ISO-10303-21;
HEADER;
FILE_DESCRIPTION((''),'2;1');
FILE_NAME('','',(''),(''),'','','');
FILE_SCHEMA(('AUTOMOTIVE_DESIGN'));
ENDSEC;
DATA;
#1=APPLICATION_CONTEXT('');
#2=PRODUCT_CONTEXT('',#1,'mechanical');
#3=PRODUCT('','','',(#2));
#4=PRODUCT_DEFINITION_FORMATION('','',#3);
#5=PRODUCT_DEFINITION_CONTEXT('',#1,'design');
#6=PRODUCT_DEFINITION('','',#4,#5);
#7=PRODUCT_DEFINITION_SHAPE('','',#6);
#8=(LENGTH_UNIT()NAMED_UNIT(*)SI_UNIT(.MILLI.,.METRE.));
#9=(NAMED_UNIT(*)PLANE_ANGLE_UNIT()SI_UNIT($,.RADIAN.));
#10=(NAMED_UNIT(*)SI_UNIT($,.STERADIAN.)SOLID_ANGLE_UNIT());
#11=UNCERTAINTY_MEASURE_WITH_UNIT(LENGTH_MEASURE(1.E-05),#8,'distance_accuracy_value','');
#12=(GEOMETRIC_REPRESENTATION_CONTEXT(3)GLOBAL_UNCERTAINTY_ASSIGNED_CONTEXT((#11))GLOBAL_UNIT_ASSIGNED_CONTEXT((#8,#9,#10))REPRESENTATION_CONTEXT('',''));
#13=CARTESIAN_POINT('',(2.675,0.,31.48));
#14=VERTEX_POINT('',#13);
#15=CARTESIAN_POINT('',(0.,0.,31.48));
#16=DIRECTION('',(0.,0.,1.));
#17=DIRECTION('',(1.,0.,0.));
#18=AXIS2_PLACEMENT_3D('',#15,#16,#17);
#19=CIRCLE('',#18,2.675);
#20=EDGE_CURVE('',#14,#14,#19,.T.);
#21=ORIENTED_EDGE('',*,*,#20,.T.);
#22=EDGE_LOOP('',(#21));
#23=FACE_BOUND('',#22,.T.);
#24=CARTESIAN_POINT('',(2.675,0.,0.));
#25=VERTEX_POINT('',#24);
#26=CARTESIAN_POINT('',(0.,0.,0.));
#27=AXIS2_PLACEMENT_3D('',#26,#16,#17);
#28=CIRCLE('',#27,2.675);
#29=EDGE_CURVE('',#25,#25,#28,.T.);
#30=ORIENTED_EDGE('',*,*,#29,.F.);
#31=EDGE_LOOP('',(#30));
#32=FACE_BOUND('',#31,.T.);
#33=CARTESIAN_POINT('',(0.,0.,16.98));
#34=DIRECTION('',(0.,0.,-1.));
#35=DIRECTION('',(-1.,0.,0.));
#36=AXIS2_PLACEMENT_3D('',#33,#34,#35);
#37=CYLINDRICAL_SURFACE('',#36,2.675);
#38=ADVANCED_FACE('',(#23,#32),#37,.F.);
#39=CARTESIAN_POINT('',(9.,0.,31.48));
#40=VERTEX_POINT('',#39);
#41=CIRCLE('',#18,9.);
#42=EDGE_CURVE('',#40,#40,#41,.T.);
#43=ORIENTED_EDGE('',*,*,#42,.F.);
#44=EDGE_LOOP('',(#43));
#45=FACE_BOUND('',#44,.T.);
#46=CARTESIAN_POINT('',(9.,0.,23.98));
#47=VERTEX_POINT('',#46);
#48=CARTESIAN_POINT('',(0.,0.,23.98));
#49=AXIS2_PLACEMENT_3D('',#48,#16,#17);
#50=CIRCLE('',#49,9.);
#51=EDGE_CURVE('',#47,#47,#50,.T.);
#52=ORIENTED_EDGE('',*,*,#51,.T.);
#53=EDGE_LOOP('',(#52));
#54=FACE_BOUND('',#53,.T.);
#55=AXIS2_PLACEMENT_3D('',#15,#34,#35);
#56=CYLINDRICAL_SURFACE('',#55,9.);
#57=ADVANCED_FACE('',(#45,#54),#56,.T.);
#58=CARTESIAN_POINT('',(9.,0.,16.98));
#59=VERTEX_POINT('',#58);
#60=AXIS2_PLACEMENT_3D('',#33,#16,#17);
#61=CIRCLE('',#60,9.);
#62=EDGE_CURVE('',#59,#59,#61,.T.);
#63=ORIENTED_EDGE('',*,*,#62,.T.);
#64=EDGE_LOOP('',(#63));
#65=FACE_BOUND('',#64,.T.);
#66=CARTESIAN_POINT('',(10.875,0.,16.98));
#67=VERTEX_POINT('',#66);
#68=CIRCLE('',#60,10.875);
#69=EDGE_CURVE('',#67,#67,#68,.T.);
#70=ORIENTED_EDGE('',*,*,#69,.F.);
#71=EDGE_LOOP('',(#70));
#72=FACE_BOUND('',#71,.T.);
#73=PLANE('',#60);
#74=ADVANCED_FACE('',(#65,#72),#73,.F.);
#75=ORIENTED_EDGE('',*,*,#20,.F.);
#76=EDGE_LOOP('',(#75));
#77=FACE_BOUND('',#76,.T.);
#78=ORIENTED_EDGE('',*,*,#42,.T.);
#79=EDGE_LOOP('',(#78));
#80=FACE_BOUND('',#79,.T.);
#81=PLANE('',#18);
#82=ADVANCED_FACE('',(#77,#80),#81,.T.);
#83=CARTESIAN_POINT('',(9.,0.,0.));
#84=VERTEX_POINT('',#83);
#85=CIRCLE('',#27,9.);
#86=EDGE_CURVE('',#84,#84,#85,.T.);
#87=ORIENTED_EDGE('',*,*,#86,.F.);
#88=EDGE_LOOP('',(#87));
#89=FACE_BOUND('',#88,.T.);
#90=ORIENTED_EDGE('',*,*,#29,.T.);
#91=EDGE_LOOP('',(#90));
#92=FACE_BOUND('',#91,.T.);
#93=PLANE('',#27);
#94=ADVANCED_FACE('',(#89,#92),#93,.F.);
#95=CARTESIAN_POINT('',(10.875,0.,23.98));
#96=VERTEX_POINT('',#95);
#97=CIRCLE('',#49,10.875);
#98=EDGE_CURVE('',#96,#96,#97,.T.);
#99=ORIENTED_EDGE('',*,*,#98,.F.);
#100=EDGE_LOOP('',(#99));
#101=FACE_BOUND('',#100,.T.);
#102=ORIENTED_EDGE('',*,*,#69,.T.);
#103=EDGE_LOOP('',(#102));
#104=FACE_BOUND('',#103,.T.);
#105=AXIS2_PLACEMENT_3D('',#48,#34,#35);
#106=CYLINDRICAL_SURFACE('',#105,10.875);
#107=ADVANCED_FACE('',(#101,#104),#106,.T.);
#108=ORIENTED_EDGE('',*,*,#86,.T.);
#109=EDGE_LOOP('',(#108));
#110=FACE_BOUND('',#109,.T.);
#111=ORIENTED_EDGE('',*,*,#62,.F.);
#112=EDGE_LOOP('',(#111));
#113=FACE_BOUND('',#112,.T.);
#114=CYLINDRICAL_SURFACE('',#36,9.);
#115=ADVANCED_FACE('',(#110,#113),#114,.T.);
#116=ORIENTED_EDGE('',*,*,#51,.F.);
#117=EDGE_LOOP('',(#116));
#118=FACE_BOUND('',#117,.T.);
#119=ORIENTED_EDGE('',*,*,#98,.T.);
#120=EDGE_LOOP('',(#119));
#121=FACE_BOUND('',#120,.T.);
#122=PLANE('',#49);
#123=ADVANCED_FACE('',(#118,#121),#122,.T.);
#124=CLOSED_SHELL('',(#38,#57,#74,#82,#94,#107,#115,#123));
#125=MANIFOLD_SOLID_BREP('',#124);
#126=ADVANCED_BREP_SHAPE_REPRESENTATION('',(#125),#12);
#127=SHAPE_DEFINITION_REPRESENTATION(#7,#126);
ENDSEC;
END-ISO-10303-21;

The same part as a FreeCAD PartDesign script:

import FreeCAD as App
import Part
import Sketcher
from FreeCAD import Vector

doc = App.newDocument("Part")
params = doc.addObject("Spreadsheet::Sheet", "Params")
for row, (alias, value) in enumerate([
    ("sketch1_diameter", "18 mm"),
    ("sketch1_diameter2", "5.35 mm"),
    ("pad1_length", "16.98 mm"),
    ("sketch2_diameter", "21.75 mm"),
    ("sketch2_diameter2", "5.35 mm"),
    ("pad2_length", "7 mm"),
    ("sketch3_diameter", "18 mm"),
    ("sketch3_diameter2", "5.35 mm"),
    ("pad3_length", "7.5 mm"),
], start=1):
    params.set(f"A{row}", alias)
    params.set(f"B{row}", "=" + value)
    params.setAlias(f"B{row}", alias)

body = doc.addObject("PartDesign::Body", "Body")

# Sketch on XY plane
sketch1 = body.newObject("Sketcher::SketchObject", "Sketch")
sketch1.AttachmentSupport = (doc.getObject("XY_Plane"), [""])
sketch1.MapMode = "FlatFace"
sketch1.addGeometry([
    Part.Circle(Vector(0, 0, 0), Vector(0, 0, 1), 9),
    Part.Circle(Vector(0, 0, 0), Vector(0, 0, 1), 2.7),
], False)
sketch1.addConstraint([
    Sketcher.Constraint("Coincident", 0, 3, -1, 1),
    Sketcher.Constraint("Coincident", 1, 3, -1, 1),
    Sketcher.Constraint("Diameter", 0, 18.0),
    Sketcher.Constraint("Diameter", 1, 5.35),
])
sketch1.setExpression("Constraints[2]", "Params.sketch1_diameter")
sketch1.setExpression("Constraints[3]", "Params.sketch1_diameter2")
pad1 = body.newObject("PartDesign::Pad", "Pad")
pad1.Profile = sketch1
pad1.setExpression("Length", "Params.pad1_length")

# Sketch on XY plane
sketch2 = body.newObject("Sketcher::SketchObject", "Sketch001")
sketch2.AttachmentSupport = (doc.getObject("XY_Plane"), [""])
sketch2.MapMode = "FlatFace"
sketch2.AttachmentOffset = App.Placement(Vector(0, 0, 16.98), App.Rotation())
sketch2.addGeometry([
    Part.Circle(Vector(0, 0, 0), Vector(0, 0, 1), 10.9),
    Part.Circle(Vector(0, 0, 0), Vector(0, 0, 1), 2.7),
], False)
sketch2.addConstraint([
    Sketcher.Constraint("Coincident", 0, 3, -1, 1),
    Sketcher.Constraint("Coincident", 1, 3, -1, 1),
    Sketcher.Constraint("Diameter", 0, 21.75),
    Sketcher.Constraint("Diameter", 1, 5.35),
])
sketch2.setExpression("Constraints[2]", "Params.sketch2_diameter")
sketch2.setExpression("Constraints[3]", "Params.sketch2_diameter2")
pad2 = body.newObject("PartDesign::Pad", "Pad001")
pad2.Profile = sketch2
pad2.setExpression("Length", "Params.pad2_length")

# Sketch on XY plane
sketch3 = body.newObject("Sketcher::SketchObject", "Sketch002")
sketch3.AttachmentSupport = (doc.getObject("XY_Plane"), [""])
sketch3.MapMode = "FlatFace"
sketch3.AttachmentOffset = App.Placement(Vector(0, 0, 23.98), App.Rotation())
sketch3.addGeometry([
    Part.Circle(Vector(0, 0, 0), Vector(0, 0, 1), 9),
    Part.Circle(Vector(0, 0, 0), Vector(0, 0, 1), 2.7),
], False)
sketch3.addConstraint([
    Sketcher.Constraint("Coincident", 0, 3, -1, 1),
    Sketcher.Constraint("Coincident", 1, 3, -1, 1),
    Sketcher.Constraint("Diameter", 0, 18.0),
    Sketcher.Constraint("Diameter", 1, 5.35),
])
sketch3.setExpression("Constraints[2]", "Params.sketch3_diameter")
sketch3.setExpression("Constraints[3]", "Params.sketch3_diameter2")
pad3 = body.newObject("PartDesign::Pad", "Pad002")
pad3.Profile = sketch3
pad3.setExpression("Length", "Params.pad3_length")

doc.recompute()
